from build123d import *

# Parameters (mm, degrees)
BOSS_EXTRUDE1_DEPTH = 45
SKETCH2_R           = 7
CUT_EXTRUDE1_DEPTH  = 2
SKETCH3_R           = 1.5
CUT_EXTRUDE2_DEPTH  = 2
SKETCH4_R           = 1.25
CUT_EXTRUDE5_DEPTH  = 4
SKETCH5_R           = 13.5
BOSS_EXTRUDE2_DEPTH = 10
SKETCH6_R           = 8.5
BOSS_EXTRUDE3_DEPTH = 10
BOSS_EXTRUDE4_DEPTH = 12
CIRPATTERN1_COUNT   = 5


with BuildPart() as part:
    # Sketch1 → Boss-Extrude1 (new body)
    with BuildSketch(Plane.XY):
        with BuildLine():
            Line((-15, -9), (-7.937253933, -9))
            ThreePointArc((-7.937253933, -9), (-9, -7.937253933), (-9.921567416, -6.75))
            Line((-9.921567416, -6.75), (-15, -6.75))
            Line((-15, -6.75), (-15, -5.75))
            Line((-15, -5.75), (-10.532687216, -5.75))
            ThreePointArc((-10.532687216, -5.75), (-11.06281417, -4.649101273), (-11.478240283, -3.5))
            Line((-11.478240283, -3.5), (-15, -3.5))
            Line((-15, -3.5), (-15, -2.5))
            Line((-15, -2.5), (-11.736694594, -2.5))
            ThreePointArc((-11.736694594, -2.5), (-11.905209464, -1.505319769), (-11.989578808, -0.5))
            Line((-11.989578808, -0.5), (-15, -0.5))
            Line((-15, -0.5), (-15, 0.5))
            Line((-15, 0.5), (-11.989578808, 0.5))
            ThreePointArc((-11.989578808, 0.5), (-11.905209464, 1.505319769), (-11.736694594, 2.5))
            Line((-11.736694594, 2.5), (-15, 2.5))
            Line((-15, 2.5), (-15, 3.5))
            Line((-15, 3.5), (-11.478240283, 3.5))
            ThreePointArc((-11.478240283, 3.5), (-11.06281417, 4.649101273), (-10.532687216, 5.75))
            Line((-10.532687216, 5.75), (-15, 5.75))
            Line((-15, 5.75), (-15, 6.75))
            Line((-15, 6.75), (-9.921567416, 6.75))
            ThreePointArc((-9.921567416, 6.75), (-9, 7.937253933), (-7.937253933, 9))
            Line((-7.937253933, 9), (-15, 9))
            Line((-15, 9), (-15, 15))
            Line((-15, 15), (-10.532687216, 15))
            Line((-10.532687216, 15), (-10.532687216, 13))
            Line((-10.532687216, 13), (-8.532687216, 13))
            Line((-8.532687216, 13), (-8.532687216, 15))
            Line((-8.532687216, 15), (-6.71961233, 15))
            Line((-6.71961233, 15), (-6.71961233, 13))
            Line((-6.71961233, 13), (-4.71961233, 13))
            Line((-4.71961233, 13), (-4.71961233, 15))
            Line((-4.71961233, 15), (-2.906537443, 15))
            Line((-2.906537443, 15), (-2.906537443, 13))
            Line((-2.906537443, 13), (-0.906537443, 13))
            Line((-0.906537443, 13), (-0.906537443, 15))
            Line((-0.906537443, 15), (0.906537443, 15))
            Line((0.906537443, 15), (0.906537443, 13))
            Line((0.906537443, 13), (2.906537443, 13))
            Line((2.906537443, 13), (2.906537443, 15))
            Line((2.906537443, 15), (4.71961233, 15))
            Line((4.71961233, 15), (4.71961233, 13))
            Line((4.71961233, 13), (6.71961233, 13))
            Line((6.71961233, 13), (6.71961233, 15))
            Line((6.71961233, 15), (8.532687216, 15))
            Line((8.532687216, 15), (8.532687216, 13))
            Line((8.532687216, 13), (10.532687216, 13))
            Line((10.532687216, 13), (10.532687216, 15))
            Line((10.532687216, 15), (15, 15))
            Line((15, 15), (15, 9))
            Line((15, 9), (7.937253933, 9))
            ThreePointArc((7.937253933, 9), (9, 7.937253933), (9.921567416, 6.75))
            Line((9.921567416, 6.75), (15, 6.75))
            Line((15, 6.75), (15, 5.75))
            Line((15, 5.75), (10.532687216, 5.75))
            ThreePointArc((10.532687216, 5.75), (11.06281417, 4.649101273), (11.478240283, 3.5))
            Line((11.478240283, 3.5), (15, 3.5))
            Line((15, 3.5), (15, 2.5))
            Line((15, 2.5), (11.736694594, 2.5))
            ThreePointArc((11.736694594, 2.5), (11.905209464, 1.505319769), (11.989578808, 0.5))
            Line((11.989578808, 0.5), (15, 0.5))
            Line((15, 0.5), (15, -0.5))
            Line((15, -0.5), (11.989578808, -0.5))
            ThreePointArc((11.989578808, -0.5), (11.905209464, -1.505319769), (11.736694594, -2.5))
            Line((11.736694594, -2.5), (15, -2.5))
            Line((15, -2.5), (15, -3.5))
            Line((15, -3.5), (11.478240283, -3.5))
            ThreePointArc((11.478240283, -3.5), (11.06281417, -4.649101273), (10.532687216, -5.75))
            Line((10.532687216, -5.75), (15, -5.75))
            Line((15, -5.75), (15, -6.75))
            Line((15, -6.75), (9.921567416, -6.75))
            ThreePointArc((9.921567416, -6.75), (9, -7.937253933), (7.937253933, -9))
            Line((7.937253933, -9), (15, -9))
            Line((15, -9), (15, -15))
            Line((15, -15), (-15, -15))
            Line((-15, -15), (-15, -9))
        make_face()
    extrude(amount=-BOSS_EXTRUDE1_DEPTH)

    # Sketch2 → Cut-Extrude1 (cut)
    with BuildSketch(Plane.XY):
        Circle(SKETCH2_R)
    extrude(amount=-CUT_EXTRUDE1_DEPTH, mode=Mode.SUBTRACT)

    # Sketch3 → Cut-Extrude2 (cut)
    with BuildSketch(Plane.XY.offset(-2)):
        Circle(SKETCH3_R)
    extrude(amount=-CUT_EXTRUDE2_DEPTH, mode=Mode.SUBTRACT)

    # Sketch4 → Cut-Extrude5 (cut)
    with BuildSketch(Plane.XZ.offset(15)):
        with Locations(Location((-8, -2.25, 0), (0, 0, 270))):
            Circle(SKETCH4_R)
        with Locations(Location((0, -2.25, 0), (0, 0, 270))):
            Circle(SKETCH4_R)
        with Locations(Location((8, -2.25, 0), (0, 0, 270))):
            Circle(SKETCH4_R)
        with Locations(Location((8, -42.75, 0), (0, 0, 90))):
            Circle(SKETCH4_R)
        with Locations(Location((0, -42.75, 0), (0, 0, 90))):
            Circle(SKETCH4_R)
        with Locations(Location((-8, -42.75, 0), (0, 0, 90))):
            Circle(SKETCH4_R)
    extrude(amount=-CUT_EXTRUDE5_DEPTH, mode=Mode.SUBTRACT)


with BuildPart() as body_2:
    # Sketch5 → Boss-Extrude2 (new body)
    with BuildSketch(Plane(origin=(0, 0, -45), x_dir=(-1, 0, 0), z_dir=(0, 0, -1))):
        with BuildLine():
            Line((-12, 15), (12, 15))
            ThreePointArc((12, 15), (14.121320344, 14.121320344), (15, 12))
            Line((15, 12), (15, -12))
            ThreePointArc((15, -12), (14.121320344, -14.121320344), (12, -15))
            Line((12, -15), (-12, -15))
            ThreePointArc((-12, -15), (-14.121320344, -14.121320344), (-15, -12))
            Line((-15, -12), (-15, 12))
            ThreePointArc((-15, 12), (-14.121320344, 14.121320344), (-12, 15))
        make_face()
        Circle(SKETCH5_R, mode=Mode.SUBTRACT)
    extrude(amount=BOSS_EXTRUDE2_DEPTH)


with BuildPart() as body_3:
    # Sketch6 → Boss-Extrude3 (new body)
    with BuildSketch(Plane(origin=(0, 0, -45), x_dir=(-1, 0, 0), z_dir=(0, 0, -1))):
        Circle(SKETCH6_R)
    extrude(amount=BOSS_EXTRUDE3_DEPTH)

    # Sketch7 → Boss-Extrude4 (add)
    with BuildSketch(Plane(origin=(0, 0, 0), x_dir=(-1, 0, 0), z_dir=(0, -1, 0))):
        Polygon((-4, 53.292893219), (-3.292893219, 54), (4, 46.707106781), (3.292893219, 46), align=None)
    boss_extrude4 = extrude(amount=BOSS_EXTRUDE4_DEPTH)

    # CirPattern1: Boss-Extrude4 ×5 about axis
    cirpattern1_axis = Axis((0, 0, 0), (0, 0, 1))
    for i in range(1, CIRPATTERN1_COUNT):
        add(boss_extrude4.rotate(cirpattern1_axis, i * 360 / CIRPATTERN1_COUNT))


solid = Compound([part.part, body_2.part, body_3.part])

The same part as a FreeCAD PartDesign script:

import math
import FreeCAD as App
import Part
import Sketcher
from FreeCAD import Vector
Q = App.Units.Quantity

doc = App.newDocument("Part")
body = doc.addObject("PartDesign::Body", "Body")

sketch1 = body.newObject("Sketcher::SketchObject", "Sketch")
sketch1.AttachmentSupport = (doc.getObject("XY_Plane"), [""])
sketch1.MapMode = "FlatFace"
sketch1.addGeometry([
    Part.LineSegment(Vector(-7.9, -9, 0), Vector(-15, -9, 0)),
    Part.LineSegment(Vector(-15, -9, 0), Vector(-15, -15, 0)),
    Part.LineSegment(Vector(-15, -15, 0), Vector(15, -15, 0)),
    Part.LineSegment(Vector(15, -15, 0), Vector(15, -9, 0)),
    Part.LineSegment(Vector(15, -9, 0), Vector(7.9, -9, 0)),
    Part.ArcOfCircle(Part.Circle(Vector(0, 0, 0), Vector(0, 0, 1), 12), math.radians(-48.59), math.radians(-34.23)),
    Part.LineSegment(Vector(9.9, -6.8, 0), Vector(15, -6.8, 0)),
    Part.LineSegment(Vector(15, -6.8, 0), Vector(15, -5.8, 0)),
    Part.LineSegment(Vector(15, -5.8, 0), Vector(10.5, -5.8, 0)),
    Part.ArcOfCircle(Part.Circle(Vector(0, 0, 0), Vector(0, 0, 1), 12), math.radians(-28.63), math.radians(-16.96)),
    Part.LineSegment(Vector(11.5, -3.5, 0), Vector(15, -3.5, 0)),
    Part.LineSegment(Vector(15, -3.5, 0), Vector(15, -2.5, 0)),
    Part.LineSegment(Vector(15, -2.5, 0), Vector(11.7, -2.5, 0)),
    Part.ArcOfCircle(Part.Circle(Vector(0, 0, 0), Vector(0, 0, 1), 12), math.radians(-12.02), math.radians(-2.39)),
    Part.LineSegment(Vector(12, -0.5, 0), Vector(15, -0.5, 0)),
    Part.LineSegment(Vector(15, -0.5, 0), Vector(15, 0.5, 0)),
    Part.LineSegment(Vector(15, 0.5, 0), Vector(12, 0.5, 0)),
    Part.ArcOfCircle(Part.Circle(Vector(0, 0, 0), Vector(0, 0, 1), 12), math.radians(2.39), math.radians(12.02)),
    Part.LineSegment(Vector(11.7, 2.5, 0), Vector(15, 2.5, 0)),
    Part.LineSegment(Vector(15, 2.5, 0), Vector(15, 3.5, 0)),
    Part.LineSegment(Vector(15, 3.5, 0), Vector(11.5, 3.5, 0)),
    Part.ArcOfCircle(Part.Circle(Vector(0, 0, 0), Vector(0, 0, 1), 12), math.radians(16.96), math.radians(28.63)),
    Part.LineSegment(Vector(10.5, 5.8, 0), Vector(15, 5.8, 0)),
    Part.LineSegment(Vector(15, 5.8, 0), Vector(15, 6.8, 0)),
    Part.LineSegment(Vector(15, 6.8, 0), Vector(9.9, 6.8, 0)),
    Part.ArcOfCircle(Part.Circle(Vector(0, 0, 0), Vector(0, 0, 1), 12), math.radians(34.23), math.radians(48.59)),
    Part.LineSegment(Vector(7.9, 9, 0), Vector(15, 9, 0)),
    Part.LineSegment(Vector(15, 9, 0), Vector(15, 15, 0)),
    Part.LineSegment(Vector(15, 15, 0), Vector(10.5, 15, 0)),
    Part.LineSegment(Vector(10.5, 15, 0), Vector(10.5, 13, 0)),
    Part.LineSegment(Vector(10.5, 13, 0), Vector(8.5, 13, 0)),
    Part.LineSegment(Vector(8.5, 13, 0), Vector(8.5, 15, 0)),
    Part.LineSegment(Vector(8.5, 15, 0), Vector(6.7, 15, 0)),
    Part.LineSegment(Vector(6.7, 15, 0), Vector(6.7, 13, 0)),
    Part.LineSegment(Vector(6.7, 13, 0), Vector(4.7, 13, 0)),
    Part.LineSegment(Vector(4.7, 13, 0), Vector(4.7, 15, 0)),
    Part.LineSegment(Vector(4.7, 15, 0), Vector(2.9, 15, 0)),
    Part.LineSegment(Vector(2.9, 15, 0), Vector(2.9, 13, 0)),
    Part.LineSegment(Vector(2.9, 13, 0), Vector(0.9, 13, 0)),
    Part.LineSegment(Vector(0.9, 13, 0), Vector(0.9, 15, 0)),
    Part.LineSegment(Vector(0.9, 15, 0), Vector(-0.9, 15, 0)),
    Part.LineSegment(Vector(-0.9, 15, 0), Vector(-0.9, 13, 0)),
    Part.LineSegment(Vector(-0.9, 13, 0), Vector(-2.9, 13, 0)),
    Part.LineSegment(Vector(-2.9, 13, 0), Vector(-2.9, 15, 0)),
    Part.LineSegment(Vector(-2.9, 15, 0), Vector(-4.7, 15, 0)),
    Part.LineSegment(Vector(-4.7, 15, 0), Vector(-4.7, 13, 0)),
    Part.LineSegment(Vector(-4.7, 13, 0), Vector(-6.7, 13, 0)),
    Part.LineSegment(Vector(-6.7, 13, 0), Vector(-6.7, 15, 0)),
    Part.LineSegment(Vector(-6.7, 15, 0), Vector(-8.5, 15, 0)),
    Part.LineSegment(Vector(-8.5, 15, 0), Vector(-8.5, 13, 0)),
    Part.LineSegment(Vector(-8.5, 13, 0), Vector(-10.5, 13, 0)),
    Part.LineSegment(Vector(-10.5, 13, 0), Vector(-10.5, 15, 0)),
    Part.LineSegment(Vector(-10.5, 15, 0), Vector(-15, 15, 0)),
    Part.LineSegment(Vector(-15, 15, 0), Vector(-15, 9, 0)),
    Part.LineSegment(Vector(-15, 9, 0), Vector(-7.9, 9, 0)),
    Part.ArcOfCircle(Part.Circle(Vector(0, 0, 0), Vector(0, 0, 1), 12), math.radians(131.41), math.radians(145.77)),
    Part.LineSegment(Vector(-9.9, 6.8, 0), Vector(-15, 6.8, 0)),
    Part.LineSegment(Vector(-15, 6.8, 0), Vector(-15, 5.8, 0)),
    Part.LineSegment(Vector(-15, 5.8, 0), Vector(-10.5, 5.8, 0)),
    Part.ArcOfCircle(Part.Circle(Vector(0, 0, 0), Vector(0, 0, 1), 12), math.radians(151.37), math.radians(163.04)),
    Part.LineSegment(Vector(-11.5, 3.5, 0), Vector(-15, 3.5, 0)),
    Part.LineSegment(Vector(-15, 3.5, 0), Vector(-15, 2.5, 0)),
    Part.LineSegment(Vector(-15, 2.5, 0), Vector(-11.7, 2.5, 0)),
    Part.ArcOfCircle(Part.Circle(Vector(0, 0, 0), Vector(0, 0, 1), 12), math.radians(167.98), math.radians(177.61)),
    Part.LineSegment(Vector(-12, 0.5, 0), Vector(-15, 0.5, 0)),
    Part.LineSegment(Vector(-15, 0.5, 0), Vector(-15, -0.5, 0)),
    Part.LineSegment(Vector(-15, -0.5, 0), Vector(-12, -0.5, 0)),
    Part.ArcOfCircle(Part.Circle(Vector(0, 0, 0), Vector(0, 0, 1), 12), math.radians(-177.61), math.radians(-167.98)),
    Part.LineSegment(Vector(-11.7, -2.5, 0), Vector(-15, -2.5, 0)),
    Part.LineSegment(Vector(-15, -2.5, 0), Vector(-15, -3.5, 0)),
    Part.LineSegment(Vector(-15, -3.5, 0), Vector(-11.5, -3.5, 0)),
    Part.ArcOfCircle(Part.Circle(Vector(0, 0, 0), Vector(0, 0, 1), 12), math.radians(-163.04), math.radians(-151.37)),
    Part.LineSegment(Vector(-10.5, -5.8, 0), Vector(-15, -5.8, 0)),
    Part.LineSegment(Vector(-15, -5.8, 0), Vector(-15, -6.8, 0)),
    Part.LineSegment(Vector(-15, -6.8, 0), Vector(-9.9, -6.8, 0)),
    Part.ArcOfCircle(Part.Circle(Vector(0, 0, 0), Vector(0, 0, 1), 12), math.radians(-145.77), math.radians(-131.41)),
], False)
sketch1.addConstraint([
    Sketcher.Constraint("Coincident", 0, 2, 1, 1),
    Sketcher.Constraint("Coincident", 1, 2, 2, 1),
    Sketcher.Constraint("Coincident", 2, 2, 3, 1),
    Sketcher.Constraint("Coincident", 3, 2, 4, 1),
    Sketcher.Constraint("Coincident", 4, 2, 5, 1),
    Sketcher.Constraint("Coincident", 5, 2, 6, 1),
    Sketcher.Constraint("Coincident", 6, 2, 7, 1),
    Sketcher.Constraint("Coincident", 7, 2, 8, 1),
    Sketcher.Constraint("Coincident", 8, 2, 9, 1),
    Sketcher.Constraint("Coincident", 9, 2, 10, 1),
    Sketcher.Constraint("Coincident", 10, 2, 11, 1),
    Sketcher.Constraint("Coincident", 11, 2, 12, 1),
    Sketcher.Constraint("Coincident", 12, 2, 13, 1),
    Sketcher.Constraint("Coincident", 13, 2, 14, 1),
    Sketcher.Constraint("Coincident", 14, 2, 15, 1),
    Sketcher.Constraint("Coincident", 15, 2, 16, 1),
    Sketcher.Constraint("Coincident", 16, 2, 17, 1),
    Sketcher.Constraint("Coincident", 17, 2, 18, 1),
    Sketcher.Constraint("Coincident", 18, 2, 19, 1),
    Sketcher.Constraint("Coincident", 19, 2, 20, 1),
    Sketcher.Constraint("Coincident", 20, 2, 21, 1),
    Sketcher.Constraint("Coincident", 21, 2, 22, 1),
    Sketcher.Constraint("Coincident", 22, 2, 23, 1),
    Sketcher.Constraint("Coincident", 23, 2, 24, 1),
    Sketcher.Constraint("Coincident", 24, 2, 25, 1),
    Sketcher.Constraint("Coincident", 25, 2, 26, 1),
    Sketcher.Constraint("Coincident", 26, 2, 27, 1),
    Sketcher.Constraint("Coincident", 27, 2, 28, 1),
    Sketcher.Constraint("Coincident", 28, 2, 29, 1),
    Sketcher.Constraint("Coincident", 29, 2, 30, 1),
    Sketcher.Constraint("Coincident", 30, 2, 31, 1),
    Sketcher.Constraint("Coincident", 31, 2, 32, 1),
    Sketcher.Constraint("Coincident", 32, 2, 33, 1),
    Sketcher.Constraint("Coincident", 33, 2, 34, 1),
    Sketcher.Constraint("Coincident", 34, 2, 35, 1),
    Sketcher.Constraint("Coincident", 35, 2, 36, 1),
    Sketcher.Constraint("Coincident", 36, 2, 37, 1),
    Sketcher.Constraint("Coincident", 37, 2, 38, 1),
    Sketcher.Constraint("Coincident", 38, 2, 39, 1),
    Sketcher.Constraint("Coincident", 39, 2, 40, 1),
    Sketcher.Constraint("Coincident", 40, 2, 41, 1),
    Sketcher.Constraint("Coincident", 41, 2, 42, 1),
    Sketcher.Constraint("Coincident", 42, 2, 43, 1),
    Sketcher.Constraint("Coincident", 43, 2, 44, 1),
    Sketcher.Constraint("Coincident", 44, 2, 45, 1),
    Sketcher.Constraint("Coincident", 45, 2, 46, 1),
    Sketcher.Constraint("Coincident", 46, 2, 47, 1),
    Sketcher.Constraint("Coincident", 47, 2, 48, 1),
    Sketcher.Constraint("Coincident", 48, 2, 49, 1),
    Sketcher.Constraint("Coincident", 49, 2, 50, 1),
    Sketcher.Constraint("Coincident", 50, 2, 51, 1),
    Sketcher.Constraint("Coincident", 51, 2, 52, 1),
    Sketcher.Constraint("Coincident", 52, 2, 53, 1),
    Sketcher.Constraint("Coincident", 53, 2, 54, 1),
    Sketcher.Constraint("Coincident", 54, 2, 55, 1),
    Sketcher.Constraint("Coincident", 55, 2, 56, 1),
    Sketcher.Constraint("Coincident", 56, 2, 57, 1),
    Sketcher.Constraint("Coincident", 57, 2, 58, 1),
    Sketcher.Constraint("Coincident", 58, 2, 59, 1),
    Sketcher.Constraint("Coincident", 59, 2, 60, 1),
    Sketcher.Constraint("Coincident", 60, 2, 61, 1),
    Sketcher.Constraint("Coincident", 61, 2, 62, 1),
    Sketcher.Constraint("Coincident", 62, 2, 63, 1),
    Sketcher.Constraint("Coincident", 63, 2, 64, 1),
    Sketcher.Constraint("Coincident", 64, 2, 65, 1),
    Sketcher.Constraint("Coincident", 65, 2, 66, 1),
    Sketcher.Constraint("Coincident", 66, 2, 67, 1),
    Sketcher.Constraint("Coincident", 67, 2, 68, 1),
    Sketcher.Constraint("Coincident", 68, 2, 69, 1),
    Sketcher.Constraint("Coincident", 69, 2, 70, 1),
    Sketcher.Constraint("Coincident", 70, 2, 71, 1),
    Sketcher.Constraint("Coincident", 71, 2, 72, 1),
    Sketcher.Constraint("Coincident", 72, 2, 73, 1),
    Sketcher.Constraint("Coincident", 73, 2, 74, 1),
    Sketcher.Constraint("Coincident", 74, 2, 75, 1),
    Sketcher.Constraint("Coincident", 75, 2, 0, 1),
    Sketcher.Constraint("Horizontal", 0),
    Sketcher.Constraint("Vertical", 1),
    Sketcher.Constraint("Horizontal", 2),
    Sketcher.Constraint("Vertical", 3),
    Sketcher.Constraint("Horizontal", 4),
    Sketcher.Constraint("Horizontal", 6),
    Sketcher.Constraint("Vertical", 7),
    Sketcher.Constraint("Horizontal", 8),
    Sketcher.Constraint("Horizontal", 10),
    Sketcher.Constraint("Vertical", 11),
    Sketcher.Constraint("Horizontal", 12),
    Sketcher.Constraint("Horizontal", 14),
    Sketcher.Constraint("Vertical", 15),
    Sketcher.Constraint("Horizontal", 16),
    Sketcher.Constraint("Horizontal", 18),
    Sketcher.Constraint("Vertical", 19),
    Sketcher.Constraint("Horizontal", 20),
    Sketcher.Constraint("Horizontal", 22),
    Sketcher.Constraint("Vertical", 23),
    Sketcher.Constraint("Horizontal", 24),
    Sketcher.Constraint("Horizontal", 26),
    Sketcher.Constraint("Vertical", 27),
    Sketcher.Constraint("Horizontal", 28),
    Sketcher.Constraint("Vertical", 29),
    Sketcher.Constraint("Horizontal", 30),
    Sketcher.Constraint("Vertical", 31),
    Sketcher.Constraint("Horizontal", 32),
    Sketcher.Constraint("Vertical", 33),
    Sketcher.Constraint("Horizontal", 34),
    Sketcher.Constraint("Vertical", 35),
    Sketcher.Constraint("Horizontal", 36),
    Sketcher.Constraint("Vertical", 37),
    Sketcher.Constraint("Horizontal", 38),
    Sketcher.Constraint("Vertical", 39),
    Sketcher.Constraint("Horizontal", 40),
    Sketcher.Constraint("Vertical", 41),
    Sketcher.Constraint("Horizontal", 42),
    Sketcher.Constraint("Vertical", 43),
    Sketcher.Constraint("Horizontal", 44),
    Sketcher.Constraint("Vertical", 45),
    Sketcher.Constraint("Horizontal", 46),
    Sketcher.Constraint("Vertical", 47),
    Sketcher.Constraint("Horizontal", 48),
    Sketcher.Constraint("Vertical", 49),
    Sketcher.Constraint("Horizontal", 50),
    Sketcher.Constraint("Vertical", 51),
    Sketcher.Constraint("Horizontal", 52),
    Sketcher.Constraint("Vertical", 53),
    Sketcher.Constraint("Horizontal", 54),
    Sketcher.Constraint("Horizontal", 56),
    Sketcher.Constraint("Vertical", 57),
    Sketcher.Constraint("Horizontal", 58),
    Sketcher.Constraint("Horizontal", 60),
    Sketcher.Constraint("Vertical", 61),
    Sketcher.Constraint("Horizontal", 62),
    Sketcher.Constraint("Horizontal", 64),
    Sketcher.Constraint("Vertical", 65),
    Sketcher.Constraint("Horizontal", 66),
    Sketcher.Constraint("Horizontal", 68),
    Sketcher.Constraint("Vertical", 69),
    Sketcher.Constraint("Horizontal", 70),
    Sketcher.Constraint("Horizontal", 72),
    Sketcher.Constraint("Vertical", 73),
    Sketcher.Constraint("Horizontal", 74),
    Sketcher.Constraint("Coincident", 5, 3, -1, 1),
    Sketcher.Constraint("Coincident", 9, 3, -1, 1),
    Sketcher.Constraint("Coincident", 13, 3, -1, 1),
    Sketcher.Constraint("Coincident", 17, 3, -1, 1),
    Sketcher.Constraint("Coincident", 21, 3, -1, 1),
    Sketcher.Constraint("Coincident", 25, 3, -1, 1),
    Sketcher.Constraint("Coincident", 55, 3, -1, 1),
    Sketcher.Constraint("Coincident", 59, 3, -1, 1),
    Sketcher.Constraint("Coincident", 63, 3, -1, 1),
    Sketcher.Constraint("Coincident", 67, 3, -1, 1),
    Sketcher.Constraint("Coincident", 71, 3, -1, 1),
    Sketcher.Constraint("Coincident", 75, 3, -1, 1),
    Sketcher.Constraint("Equal", 5, 9),
    Sketcher.Constraint("Equal", 9, 13),
    Sketcher.Constraint("Equal", 13, 17),
    Sketcher.Constraint("Equal", 17, 21),
    Sketcher.Constraint("Equal", 21, 25),
    Sketcher.Constraint("Equal", 25, 55),
    Sketcher.Constraint("Equal", 55, 59),
    Sketcher.Constraint("Equal", 59, 63),
    Sketcher.Constraint("Equal", 63, 67),
    Sketcher.Constraint("Equal", 67, 71),
    Sketcher.Constraint("Equal", 71, 75),
    Sketcher.Constraint("Symmetric", 0, 2, 26, 2, -1, 1),
    Sketcher.Constraint("Symmetric", 2, 2, 52, 2, -1, 1),
    Sketcher.Constraint("Symmetric", 6, 2, 56, 2, -1, 1),
    Sketcher.Constraint("Symmetric", 10, 2, 60, 2, -1, 1),
    Sketcher.Constraint("Symmetric", 14, 2, 64, 2, -1, 1),
    Sketcher.Constraint("Symmetric", 18, 2, 68, 2, -1, 1),
    Sketcher.Constraint("Symmetric", 22, 2, 72, 2, -1, 1),
    Sketcher.Constraint("Symmetric", 0, 2, 3, 2, -2),
    Sketcher.Constraint("Symmetric", 38, 2, 41, 2, -2),
    Sketcher.Constraint("Symmetric", 36, 2, 43, 2, -2),
    Sketcher.Constraint("Symmetric", 34, 2, 45, 2, -2),
    Sketcher.Constraint("Symmetric", 32, 2, 47, 2, -2),
    Sketcher.Constraint("Symmetric", 30, 2, 49, 2, -2),
    Sketcher.Constraint("Symmetric", 28, 2, 51, 2, -2),
    Sketcher.Constraint("Symmetric", 23, 2, 56, 2, -2),
    Sketcher.Constraint("Symmetric", 19, 2, 60, 2, -2),
    Sketcher.Constraint("Horizontal", 28, 2, 31, 2),
    Sketcher.Constraint("Horizontal", 30, 2, 33, 2),
    Sketcher.Constraint("Horizontal", 32, 2, 35, 2),
    Sketcher.Constraint("Horizontal", 34, 2, 37, 2),
    Sketcher.Constraint("Horizontal", 36, 2, 39, 2),
    Sketcher.Constraint("Horizontal", 26, 2, 53, 2),
    Sketcher.Constraint("Horizontal", 22, 2, 57, 2),
    Sketcher.Constraint("Horizontal", 18, 2, 61, 2),
    Sketcher.Constraint("Horizontal", 16, 2, 63, 2),
    Sketcher.Constraint("Horizontal", 14, 2, 65, 2),
    Sketcher.Constraint("Horizontal", 12, 2, 67, 2),
    Sketcher.Constraint("Horizontal", 10, 2, 69, 2),
    Sketcher.Constraint("Horizontal", 8, 2, 71, 2),
    Sketcher.Constraint("Horizontal", 6, 2, 73, 2),
    Sketcher.Constraint("Vertical", 3, 2, 6, 2),
    Sketcher.Constraint("Vertical", 7, 2, 10, 2),
    Sketcher.Constraint("Vertical", 11, 2, 14, 2),
    Sketcher.Constraint("Vertical", 21, 2, 28, 2),
    Sketcher.Constraint("Equal", 30, 34),
    Sketcher.Constraint("Equal", 32, 36),
    Sketcher.Constraint("Equal", 34, 38),
    Sketcher.Constraint("Equal", 36, 40),
    Sketcher.Constraint("Equal", 7, 11),
    Sketcher.Constraint("Equal", 11, 15),
    Sketcher.Constraint("Equal", 50, 29),
    Sketcher.Constraint("Radius", 5, Q("12 mm")),
    Sketcher.Constraint("DistanceX", 2, 1, 2, 2, Q("30 mm")),
    Sketcher.Constraint("DistanceX", 30, 2, 30, 1, Q("2 mm")),
    Sketcher.Constraint("DistanceY", 1, 2, 1, 1, Q("6 mm")),
    Sketcher.Constraint("DistanceY", 7, 1, 7, 2, Q("1 mm")),
    Sketcher.Constraint("DistanceY", 0, 2, -1, 1, Q("9 mm")),
    Sketcher.Constraint("DistanceY", 9, 2, -1, 1, Q("3.5 mm")),
    Sketcher.Constraint("DistanceY", 5, 2, -1, 1, Q("6.75 mm")),
])
pad1 = body.newObject("PartDesign::Pad", "Pad")
pad1.Profile = sketch1
pad1.Length = 45
pad1.Reversed = True

sketch2 = body.newObject("Sketcher::SketchObject", "Sketch001")
sketch2.AttachmentSupport = (doc.getObject("XY_Plane"), [""])
sketch2.MapMode = "FlatFace"
sketch2.addGeometry(Part.Circle(Vector(0, 0, 0), Vector(0, 0, 1), 7), False)
sketch2.addConstraint([
    Sketcher.Constraint("Coincident", 0, 3, -1, 1),
    Sketcher.Constraint("Diameter", 0, Q("14 mm")),
])
pocket1 = body.newObject("PartDesign::Pocket", "Pocket")
pocket1.Profile = sketch2
pocket1.Length = 2

sketch3 = body.newObject("Sketcher::SketchObject", "Sketch002")
sketch3.AttachmentSupport = (doc.getObject("XY_Plane"), [""])
sketch3.MapMode = "FlatFace"
sketch3.AttachmentOffset = App.Placement(Vector(0, 0, -2), App.Rotation())
sketch3.addGeometry(Part.Circle(Vector(0, 0, 0), Vector(0, 0, 1), 1.5), False)
sketch3.addConstraint([
    Sketcher.Constraint("Coincident", 0, 3, -1, 1),
    Sketcher.Constraint("Diameter", 0, Q("3 mm")),
])
pocket2 = body.newObject("PartDesign::Pocket", "Pocket001")
pocket2.Profile = sketch3
pocket2.Length = 2

sketch4 = body.newObject("Sketcher::SketchObject", "Sketch003")
sketch4.AttachmentSupport = (doc.getObject("XZ_Plane"), [""])
sketch4.MapMode = "FlatFace"
sketch4.AttachmentOffset = App.Placement(Vector(0, 0, 15), App.Rotation())
sketch4.addGeometry([
    Part.Circle(Vector(-8, -2.2, 0), Vector(0, 0, 1), 1.2),
    Part.Circle(Vector(0, -2.2, 0), Vector(0, 0, 1), 1.2),
    Part.Circle(Vector(8, -2.2, 0), Vector(0, 0, 1), 1.2),
    Part.Circle(Vector(8, -42.8, 0), Vector(0, 0, 1), 1.2),
    Part.Circle(Vector(0, -42.8, 0), Vector(0, 0, 1), 1.2),
    Part.Circle(Vector(-8, -42.8, 0), Vector(0, 0, 1), 1.2),
], False)
sketch4.addConstraint([
    Sketcher.Constraint("Equal", 0, 1),
    Sketcher.Constraint("Equal", 1, 2),
    Sketcher.Constraint("Equal", 2, 3),
    Sketcher.Constraint("Equal", 3, 4),
    Sketcher.Constraint("Equal", 4, 5),
    Sketcher.Constraint("Symmetric", 0, 3, 2, 3, -2),
    Sketcher.Constraint("Symmetric", 3, 3, 5, 3, -2),
    Sketcher.Constraint("PointOnObject", 1, 3, -2),
    Sketcher.Constraint("PointOnObject", 4, 3, -2),
    Sketcher.Constraint("Horizontal", 0, 3, 1, 3),
    Sketcher.Constraint("Horizontal", 3, 3, 4, 3),
    Sketcher.Constraint("Vertical", 2, 3, 3, 3),
    Sketcher.Constraint("Diameter", 0, Q("2.5 mm")),
    Sketcher.Constraint("DistanceX", 0, 3, -1, 1, Q("8 mm")),
    Sketcher.Constraint("DistanceY", 3, 3, 2, 3, Q("40.5 mm")),
    Sketcher.Constraint("DistanceY", 0, 3, -1, 1, Q("2.25 mm")),
])
pocket3 = body.newObject("PartDesign::Pocket", "Pocket002")
pocket3.Profile = sketch4
pocket3.Length = 4
body2 = doc.addObject("PartDesign::Body", "Body001")

sketch5 = body2.newObject("Sketcher::SketchObject", "Sketch004")
sketch5.AttachmentSupport = (doc.getObject("XY_Plane001"), [""])
sketch5.MapMode = "FlatFace"
sketch5.AttachmentOffset = App.Placement(Vector(0, 0, -45), App.Rotation())
sketch5.addGeometry([
    Part.LineSegment(Vector(-12, 15, 0), Vector(12, 15, 0)),
    Part.ArcOfCircle(Part.Circle(Vector(12, 12, 0), Vector(0, 0, 1), 3), math.radians(0), math.radians(90)),
    Part.LineSegment(Vector(15, 12, 0), Vector(15, -12, 0)),
    Part.ArcOfCircle(Part.Circle(Vector(12, -12, 0), Vector(0, 0, 1), 3), math.radians(-90), math.radians(0)),
    Part.LineSegment(Vector(12, -15, 0), Vector(-12, -15, 0)),
    Part.ArcOfCircle(Part.Circle(Vector(-12, -12, 0), Vector(0, 0, 1), 3), math.radians(180), math.radians(270)),
    Part.LineSegment(Vector(-15, -12, 0), Vector(-15, 12, 0)),
    Part.ArcOfCircle(Part.Circle(Vector(-12, 12, 0), Vector(0, 0, 1), 3), math.radians(90), math.radians(180)),
    Part.Circle(Vector(0, 0, 0), Vector(0, 0, 1), 13.5),
], False)
sketch5.addConstraint([
    Sketcher.Constraint("Tangent", 0, 2, 1, 2),
    Sketcher.Constraint("Tangent", 1, 1, 2, 1),
    Sketcher.Constraint("Tangent", 2, 2, 3, 2),
    Sketcher.Constraint("Tangent", 3, 1, 4, 1),
    Sketcher.Constraint("Tangent", 4, 2, 5, 2),
    Sketcher.Constraint("Tangent", 5, 1, 6, 1),
    Sketcher.Constraint("Tangent", 6, 2, 7, 2),
    Sketcher.Constraint("Tangent", 7, 1, 0, 1),
    Sketcher.Constraint("Horizontal", 0),
    Sketcher.Constraint("Vertical", 2),
    Sketcher.Constraint("Horizontal", 4),
    Sketcher.Constraint("Vertical", 6),
    Sketcher.Constraint("Coincident", 8, 3, -1, 1),
    Sketcher.Constraint("Equal", 1, 3),
    Sketcher.Constraint("Equal", 3, 5),
    Sketcher.Constraint("Equal", 5, 7),
    Sketcher.Constraint("Symmetric", 1, 3, 5, 3, -1, 1),
    Sketcher.Constraint("Equal", 4, 2),
    Sketcher.Constraint("Diameter", 8, Q("27 mm")),
    Sketcher.Constraint("Radius", 1, Q("3 mm")),
    Sketcher.Constraint("DistanceX", 0, 1, 0, 2, Q("24 mm")),
])
pad2 = body2.newObject("PartDesign::Pad", "Pad001")
pad2.Profile = sketch5
pad2.Length = 10
pad2.Reversed = True
body3 = doc.addObject("PartDesign::Body", "Body002")

sketch6 = body3.newObject("Sketcher::SketchObject", "Sketch005")
sketch6.AttachmentSupport = (doc.getObject("XY_Plane002"), [""])
sketch6.MapMode = "FlatFace"
sketch6.AttachmentOffset = App.Placement(Vector(0, 0, -45), App.Rotation())
sketch6.addGeometry(Part.Circle(Vector(0, 0, 0), Vector(0, 0, 1), 8), False)
sketch6.addConstraint([
    Sketcher.Constraint("Coincident", 0, 3, -1, 1),
    Sketcher.Constraint("Diameter", 0, Q("17 mm")),
])
pad3 = body3.newObject("PartDesign::Pad", "Pad002")
pad3.Profile = sketch6
pad3.Length = 10
pad3.Reversed = True

sketch7 = body3.newObject("Sketcher::SketchObject", "Sketch006")
sketch7.AttachmentSupport = (doc.getObject("XZ_Plane002"), [""])
sketch7.MapMode = "FlatFace"
sketch7.addGeometry([
    Part.LineSegment(Vector(3.3, -54, 0), Vector(4, -53.3, 0)),
    Part.LineSegment(Vector(4, -53.3, 0), Vector(-3.3, -46, 0)),
    Part.LineSegment(Vector(-3.3, -46, 0), Vector(-4, -46.7, 0)),
    Part.LineSegment(Vector(-4, -46.7, 0), Vector(3.3, -54, 0)),
], False)
sketch7.addConstraint([
    Sketcher.Constraint("Coincident", 0, 2, 1, 1),
    Sketcher.Constraint("Coincident", 1, 2, 2, 1),
    Sketcher.Constraint("Coincident", 2, 2, 3, 1),
    Sketcher.Constraint("Coincident", 3, 2, 0, 1),
    Sketcher.Constraint("Perpendicular", 0, 1),
    Sketcher.Constraint("Perpendicular", 1, 2),
    Sketcher.Constraint("Perpendicular", 2, 3),
    Sketcher.Constraint("Angle", 0, Q("45 deg")),
    Sketcher.Constraint("Distance", 0, Q("1 mm")),
    Sketcher.Constraint("DistanceX", -1, 1, 0, 2, Q("4 mm")),
    Sketcher.Constraint("DistanceY", 1, 2, -1, 1, Q("46 mm")),
    Sketcher.Constraint("DistanceX", 2, 2, -1, 1, Q("4 mm")),
])
pad4 = body3.newObject("PartDesign::Pad", "Pad003")
pad4.Profile = sketch7
pad4.Length = 12
doc.recompute()

polarpattern = body3.newObject("PartDesign::PolarPattern", "PolarPattern")
polarpattern.Originals = [pad4]
polarpattern.Axis = (doc.getObject("Z_Axis002"), [""])
polarpattern.Angle = 360
polarpattern.Occurrences = 5
body3.Tip = polarpattern

doc.recompute()
